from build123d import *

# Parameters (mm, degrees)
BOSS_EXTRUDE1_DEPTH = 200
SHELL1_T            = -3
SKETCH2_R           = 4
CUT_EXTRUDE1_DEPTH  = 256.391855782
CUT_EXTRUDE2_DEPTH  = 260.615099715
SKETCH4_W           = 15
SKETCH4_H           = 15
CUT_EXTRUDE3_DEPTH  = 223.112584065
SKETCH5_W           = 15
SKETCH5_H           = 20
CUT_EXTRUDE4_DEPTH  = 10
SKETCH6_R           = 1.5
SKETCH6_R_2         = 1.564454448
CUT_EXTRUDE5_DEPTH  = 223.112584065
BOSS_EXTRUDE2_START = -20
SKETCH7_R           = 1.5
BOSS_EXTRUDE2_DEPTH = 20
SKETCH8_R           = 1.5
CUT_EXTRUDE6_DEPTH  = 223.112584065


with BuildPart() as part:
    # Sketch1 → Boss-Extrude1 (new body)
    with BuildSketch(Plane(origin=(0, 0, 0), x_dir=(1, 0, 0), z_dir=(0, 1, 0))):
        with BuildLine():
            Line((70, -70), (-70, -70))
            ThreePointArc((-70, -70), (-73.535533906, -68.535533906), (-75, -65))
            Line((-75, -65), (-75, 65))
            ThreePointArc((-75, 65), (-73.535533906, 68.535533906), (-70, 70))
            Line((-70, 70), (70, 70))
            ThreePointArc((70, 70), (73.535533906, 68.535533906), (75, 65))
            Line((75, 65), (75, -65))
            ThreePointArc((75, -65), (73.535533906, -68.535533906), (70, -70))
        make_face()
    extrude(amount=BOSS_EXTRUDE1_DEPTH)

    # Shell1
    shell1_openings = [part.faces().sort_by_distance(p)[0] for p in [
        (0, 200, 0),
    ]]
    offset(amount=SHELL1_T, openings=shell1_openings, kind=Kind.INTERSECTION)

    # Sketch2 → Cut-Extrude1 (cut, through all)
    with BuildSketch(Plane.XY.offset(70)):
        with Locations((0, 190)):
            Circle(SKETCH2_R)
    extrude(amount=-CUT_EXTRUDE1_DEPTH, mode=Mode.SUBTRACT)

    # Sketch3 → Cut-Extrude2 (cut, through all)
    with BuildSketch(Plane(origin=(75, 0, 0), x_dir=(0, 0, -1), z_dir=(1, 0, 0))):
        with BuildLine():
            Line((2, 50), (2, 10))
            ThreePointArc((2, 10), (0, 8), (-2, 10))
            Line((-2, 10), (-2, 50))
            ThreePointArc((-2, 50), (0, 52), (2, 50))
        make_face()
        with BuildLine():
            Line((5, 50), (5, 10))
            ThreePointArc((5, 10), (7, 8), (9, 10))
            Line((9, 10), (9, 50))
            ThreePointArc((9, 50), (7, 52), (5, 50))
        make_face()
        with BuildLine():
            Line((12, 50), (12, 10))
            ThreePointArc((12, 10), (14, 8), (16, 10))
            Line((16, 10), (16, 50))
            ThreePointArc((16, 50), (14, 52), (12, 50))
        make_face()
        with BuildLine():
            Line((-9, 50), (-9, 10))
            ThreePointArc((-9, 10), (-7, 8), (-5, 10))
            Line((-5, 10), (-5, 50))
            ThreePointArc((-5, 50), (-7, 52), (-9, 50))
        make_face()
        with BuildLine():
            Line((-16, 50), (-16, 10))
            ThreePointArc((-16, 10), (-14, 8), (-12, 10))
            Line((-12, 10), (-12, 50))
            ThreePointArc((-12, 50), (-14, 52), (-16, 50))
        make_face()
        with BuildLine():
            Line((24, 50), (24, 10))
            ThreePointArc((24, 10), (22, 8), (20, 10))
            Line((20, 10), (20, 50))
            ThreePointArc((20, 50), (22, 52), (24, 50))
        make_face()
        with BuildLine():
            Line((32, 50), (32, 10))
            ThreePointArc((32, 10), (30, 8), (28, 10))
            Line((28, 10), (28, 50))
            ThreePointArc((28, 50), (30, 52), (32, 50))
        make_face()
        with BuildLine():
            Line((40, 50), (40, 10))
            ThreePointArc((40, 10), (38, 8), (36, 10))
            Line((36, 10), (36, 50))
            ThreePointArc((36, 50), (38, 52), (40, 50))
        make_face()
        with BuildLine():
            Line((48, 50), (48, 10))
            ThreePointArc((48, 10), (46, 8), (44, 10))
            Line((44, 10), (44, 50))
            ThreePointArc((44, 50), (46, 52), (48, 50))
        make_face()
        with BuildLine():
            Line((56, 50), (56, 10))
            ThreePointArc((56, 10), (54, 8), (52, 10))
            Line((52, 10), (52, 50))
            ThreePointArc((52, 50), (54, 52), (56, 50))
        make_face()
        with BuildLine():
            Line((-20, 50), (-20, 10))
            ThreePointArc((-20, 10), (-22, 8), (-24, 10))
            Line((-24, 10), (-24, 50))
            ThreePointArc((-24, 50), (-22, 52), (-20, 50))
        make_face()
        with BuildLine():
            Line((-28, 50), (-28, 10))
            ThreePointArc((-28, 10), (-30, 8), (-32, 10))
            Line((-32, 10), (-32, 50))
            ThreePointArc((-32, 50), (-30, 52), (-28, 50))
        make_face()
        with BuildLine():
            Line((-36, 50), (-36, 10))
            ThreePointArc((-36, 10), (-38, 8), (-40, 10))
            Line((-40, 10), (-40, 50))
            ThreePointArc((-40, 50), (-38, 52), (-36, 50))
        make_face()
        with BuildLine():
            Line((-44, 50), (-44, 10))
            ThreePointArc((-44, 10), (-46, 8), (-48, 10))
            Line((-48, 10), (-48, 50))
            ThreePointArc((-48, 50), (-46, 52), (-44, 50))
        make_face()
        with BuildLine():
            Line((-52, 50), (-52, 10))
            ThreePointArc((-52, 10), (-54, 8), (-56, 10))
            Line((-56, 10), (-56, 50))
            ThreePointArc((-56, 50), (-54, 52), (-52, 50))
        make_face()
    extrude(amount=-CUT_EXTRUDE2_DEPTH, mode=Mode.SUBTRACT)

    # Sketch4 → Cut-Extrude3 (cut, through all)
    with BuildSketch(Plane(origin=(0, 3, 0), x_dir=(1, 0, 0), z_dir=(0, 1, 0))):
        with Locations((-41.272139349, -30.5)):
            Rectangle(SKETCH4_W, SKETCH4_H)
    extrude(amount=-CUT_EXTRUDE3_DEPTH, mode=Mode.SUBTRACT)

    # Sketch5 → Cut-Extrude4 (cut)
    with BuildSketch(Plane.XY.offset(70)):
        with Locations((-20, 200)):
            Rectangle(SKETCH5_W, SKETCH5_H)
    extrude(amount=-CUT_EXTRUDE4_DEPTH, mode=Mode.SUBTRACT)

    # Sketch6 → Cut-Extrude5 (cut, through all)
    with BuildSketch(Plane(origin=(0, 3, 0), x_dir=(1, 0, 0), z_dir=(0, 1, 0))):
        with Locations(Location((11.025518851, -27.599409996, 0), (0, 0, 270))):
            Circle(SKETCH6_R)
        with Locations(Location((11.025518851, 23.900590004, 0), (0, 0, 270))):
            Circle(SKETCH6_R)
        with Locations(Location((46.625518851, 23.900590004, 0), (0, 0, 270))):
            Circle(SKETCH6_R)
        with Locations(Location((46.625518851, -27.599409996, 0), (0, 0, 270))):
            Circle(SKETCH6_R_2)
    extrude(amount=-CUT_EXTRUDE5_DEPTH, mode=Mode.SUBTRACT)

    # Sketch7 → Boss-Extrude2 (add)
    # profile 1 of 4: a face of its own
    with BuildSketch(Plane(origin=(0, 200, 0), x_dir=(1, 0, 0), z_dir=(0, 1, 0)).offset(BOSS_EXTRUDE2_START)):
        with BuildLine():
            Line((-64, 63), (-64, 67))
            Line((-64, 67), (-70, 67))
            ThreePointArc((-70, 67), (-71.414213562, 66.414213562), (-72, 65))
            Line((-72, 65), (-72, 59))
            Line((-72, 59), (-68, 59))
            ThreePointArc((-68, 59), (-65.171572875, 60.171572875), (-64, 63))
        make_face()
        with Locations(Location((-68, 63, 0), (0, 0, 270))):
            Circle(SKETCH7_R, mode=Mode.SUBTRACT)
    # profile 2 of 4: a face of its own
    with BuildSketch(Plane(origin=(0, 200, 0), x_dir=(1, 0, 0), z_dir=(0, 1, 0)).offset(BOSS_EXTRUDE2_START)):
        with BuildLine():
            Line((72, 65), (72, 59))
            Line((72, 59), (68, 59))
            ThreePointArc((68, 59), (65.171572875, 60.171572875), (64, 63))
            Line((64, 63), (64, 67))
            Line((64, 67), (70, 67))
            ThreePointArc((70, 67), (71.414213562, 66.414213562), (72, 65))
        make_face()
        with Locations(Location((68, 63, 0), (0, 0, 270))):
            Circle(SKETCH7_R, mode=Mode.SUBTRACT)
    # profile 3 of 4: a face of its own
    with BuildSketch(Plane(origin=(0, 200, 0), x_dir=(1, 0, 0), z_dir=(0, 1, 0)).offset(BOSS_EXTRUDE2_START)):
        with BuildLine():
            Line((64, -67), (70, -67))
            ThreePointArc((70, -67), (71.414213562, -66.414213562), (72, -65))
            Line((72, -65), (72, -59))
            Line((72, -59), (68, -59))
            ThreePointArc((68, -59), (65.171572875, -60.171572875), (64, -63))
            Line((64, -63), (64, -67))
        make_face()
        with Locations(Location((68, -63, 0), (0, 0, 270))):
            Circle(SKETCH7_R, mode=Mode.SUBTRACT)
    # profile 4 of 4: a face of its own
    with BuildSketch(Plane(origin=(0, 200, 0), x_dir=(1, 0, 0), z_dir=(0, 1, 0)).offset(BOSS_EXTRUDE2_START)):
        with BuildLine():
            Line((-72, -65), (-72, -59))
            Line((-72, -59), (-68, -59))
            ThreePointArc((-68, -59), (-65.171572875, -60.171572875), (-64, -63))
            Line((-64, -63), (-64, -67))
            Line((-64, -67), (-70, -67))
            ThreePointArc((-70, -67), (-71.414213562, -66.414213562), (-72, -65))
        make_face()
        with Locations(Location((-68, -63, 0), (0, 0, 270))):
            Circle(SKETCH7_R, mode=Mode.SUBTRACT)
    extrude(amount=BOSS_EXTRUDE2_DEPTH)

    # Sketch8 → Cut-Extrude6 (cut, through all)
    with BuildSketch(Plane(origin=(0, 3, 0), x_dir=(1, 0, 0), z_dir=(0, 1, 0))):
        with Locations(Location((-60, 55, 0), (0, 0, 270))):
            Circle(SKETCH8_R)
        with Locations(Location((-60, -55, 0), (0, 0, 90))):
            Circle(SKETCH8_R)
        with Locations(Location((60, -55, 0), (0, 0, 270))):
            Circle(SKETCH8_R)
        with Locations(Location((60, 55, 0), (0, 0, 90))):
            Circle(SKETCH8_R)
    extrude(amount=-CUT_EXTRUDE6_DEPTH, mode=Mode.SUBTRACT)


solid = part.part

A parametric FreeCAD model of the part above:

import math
import FreeCAD as App
import Part
import Sketcher

V = App.Vector
Q = App.Units.Quantity


def faces_at(feature, points):
    """Names of the faces that lie closest to the given points."""
    faces = feature.Shape.Faces
    near = lambda p: min(range(len(faces)), key=lambda i: faces[i].distToShape(Part.Vertex(*p))[0])
    return sorted({f"Face{near(p) + 1}" for p in points})


def add_polygon(sketch, points):
    """Adds a closed chain of lines whose ends are joined by coincident constraints."""
    first, n = sketch.GeometryCount, len(points)
    for a, b in zip(points, points[1:] + points[:1]):
        sketch.addGeometry(Part.LineSegment(App.Vector(*a, 0), App.Vector(*b, 0)), False)
    for i in range(n):
        sketch.addConstraint(Sketcher.Constraint("Coincident", first + i, 2, first + (i + 1) % n, 1))

doc = App.newDocument("Part")
body = doc.addObject("PartDesign::Body", "Body")

# Sketch on XZ plane
sketch1 = body.newObject("Sketcher::SketchObject", "Sketch")
sketch1.AttachmentSupport = (doc.getObject("XZ_Plane"), [""])
sketch1.MapMode = "FlatFace"
sketch1.addGeometry(Part.LineSegment(V(-70, 70, 0), V(70, 70, 0)), False)
sketch1.addGeometry(Part.ArcOfCircle(Part.Circle(V(70, 65, 0), V(0, 0, 1), 5), math.radians(0), math.radians(90)), False)
sketch1.addGeometry(Part.LineSegment(V(75, 65, 0), V(75, -65, 0)), False)
sketch1.addGeometry(Part.ArcOfCircle(Part.Circle(V(70, -65, 0), V(0, 0, 1), 5), math.radians(-90), math.radians(0)), False)
sketch1.addGeometry(Part.LineSegment(V(70, -70, 0), V(-70, -70, 0)), False)
sketch1.addGeometry(Part.ArcOfCircle(Part.Circle(V(-70, -65, 0), V(0, 0, 1), 5), math.radians(180), math.radians(270)), False)
sketch1.addGeometry(Part.LineSegment(V(-75, -65, 0), V(-75, 65, 0)), False)
sketch1.addGeometry(Part.ArcOfCircle(Part.Circle(V(-70, 65, 0), V(0, 0, 1), 5), math.radians(90), math.radians(180)), False)
sketch1.addConstraint(Sketcher.Constraint("Tangent", 0, 2, 1, 2))
sketch1.addConstraint(Sketcher.Constraint("Tangent", 1, 1, 2, 1))
sketch1.addConstraint(Sketcher.Constraint("Tangent", 2, 2, 3, 2))
sketch1.addConstraint(Sketcher.Constraint("Tangent", 3, 1, 4, 1))
sketch1.addConstraint(Sketcher.Constraint("Tangent", 4, 2, 5, 2))
sketch1.addConstraint(Sketcher.Constraint("Tangent", 5, 1, 6, 1))
sketch1.addConstraint(Sketcher.Constraint("Tangent", 6, 2, 7, 2))
sketch1.addConstraint(Sketcher.Constraint("Tangent", 7, 1, 0, 1))
sketch1.addConstraint(Sketcher.Constraint("Horizontal", 0))
sketch1.addConstraint(Sketcher.Constraint("Vertical", 2))
sketch1.addConstraint(Sketcher.Constraint("Horizontal", 4))
sketch1.addConstraint(Sketcher.Constraint("Vertical", 6))
sketch1.addConstraint(Sketcher.Constraint("Equal", 1, 3))
sketch1.addConstraint(Sketcher.Constraint("Equal", 3, 5))
sketch1.addConstraint(Sketcher.Constraint("Equal", 5, 7))
sketch1.addConstraint(Sketcher.Constraint("Symmetric", 1, 3, 5, 3, -1, 1))
sketch1.addConstraint(Sketcher.Constraint("Radius", 1, Q("5 mm")))
sketch1.addConstraint(Sketcher.Constraint("DistanceX", 0, 1, 0, 2, Q("140 mm")))
sketch1.addConstraint(Sketcher.Constraint("DistanceY", 2, 2, 2, 1, Q("130 mm")))
pad1 = body.newObject("PartDesign::Pad", "Pad")
pad1.Profile = sketch1
pad1.Length = 200
pad1.Reversed = True
doc.recompute()

thickness = body.newObject("PartDesign::Thickness", "Thickness")
thickness.Base = (pad1, faces_at(pad1, [(0, 200, 0)]))
thickness.Value = 3
thickness.Reversed = True
thickness.Join = "Intersection"

# Sketch on XY plane
sketch2 = body.newObject("Sketcher::SketchObject", "Sketch001")
sketch2.AttachmentSupport = (doc.getObject("XY_Plane"), [""])
sketch2.MapMode = "FlatFace"
sketch2.AttachmentOffset = App.Placement(V(0, 0, 70), App.Rotation())
sketch2.addGeometry(Part.Circle(V(0, 190, 0), V(0, 0, 1), 4), False)
sketch2.addConstraint(Sketcher.Constraint("PointOnObject", 0, 3, -2))
sketch2.addConstraint(Sketcher.Constraint("Diameter", 0, Q("8 mm")))
sketch2.addConstraint(Sketcher.Constraint("DistanceY", -1, 1, 0, 3, Q("190 mm")))
pocket1 = body.newObject("PartDesign::Pocket", "Pocket")
pocket1.Profile = sketch2
pocket1.Type = "ThroughAll"

# Sketch on YZ plane
sketch3 = body.newObject("Sketcher::SketchObject", "Sketch002")
sketch3.AttachmentSupport = (doc.getObject("YZ_Plane"), [""])
sketch3.MapMode = "FlatFace"
sketch3.AttachmentOffset = App.Placement(V(0, 0, 75), App.Rotation())
sketch3.addGeometry(Part.LineSegment(V(10, -2, 0), V(50, -2, 0)), False)
sketch3.addGeometry(Part.ArcOfCircle(Part.Circle(V(50, 0, 0), V(0, 0, 1), 2), math.radians(-90), math.radians(90)), False)
sketch3.addGeometry(Part.LineSegment(V(50, 2, 0), V(10, 2, 0)), False)
sketch3.addGeometry(Part.ArcOfCircle(Part.Circle(V(10, 0, 0), V(0, 0, 1), 2), math.radians(90), math.radians(270)), False)
sketch3.addGeometry(Part.LineSegment(V(50, -5, 0), V(10, -5, 0)), False)
sketch3.addGeometry(Part.ArcOfCircle(Part.Circle(V(10, -7, 0), V(0, 0, 1), 2), math.radians(90), math.radians(270)), False)
sketch3.addGeometry(Part.LineSegment(V(10, -9, 0), V(50, -9, 0)), False)
sketch3.addGeometry(Part.ArcOfCircle(Part.Circle(V(50, -7, 0), V(0, 0, 1), 2), math.radians(-90), math.radians(90)), False)
sketch3.addGeometry(Part.LineSegment(V(50, -12, 0), V(10, -12, 0)), False)
sketch3.addGeometry(Part.ArcOfCircle(Part.Circle(V(10, -14, 0), V(0, 0, 1), 2), math.radians(90), math.radians(270)), False)
sketch3.addGeometry(Part.LineSegment(V(10, -16, 0), V(50, -16, 0)), False)
sketch3.addGeometry(Part.ArcOfCircle(Part.Circle(V(50, -14, 0), V(0, 0, 1), 2), math.radians(-90), math.radians(90)), False)
sketch3.addGeometry(Part.LineSegment(V(50, 9, 0), V(10, 9, 0)), False)
sketch3.addGeometry(Part.ArcOfCircle(Part.Circle(V(10, 7, 0), V(0, 0, 1), 2), math.radians(90), math.radians(270)), False)
sketch3.addGeometry(Part.LineSegment(V(10, 5, 0), V(50, 5, 0)), False)
sketch3.addGeometry(Part.ArcOfCircle(Part.Circle(V(50, 7, 0), V(0, 0, 1), 2), math.radians(-90), math.radians(90)), False)
sketch3.addGeometry(Part.LineSegment(V(50, 16, 0), V(10, 16, 0)), False)
sketch3.addGeometry(Part.ArcOfCircle(Part.Circle(V(10, 14, 0), V(0, 0, 1), 2), math.radians(90), math.radians(270)), False)
sketch3.addGeometry(Part.LineSegment(V(10, 12, 0), V(50, 12, 0)), False)
sketch3.addGeometry(Part.ArcOfCircle(Part.Circle(V(50, 14, 0), V(0, 0, 1), 2), math.radians(-90), math.radians(90)), False)
sketch3.addGeometry(Part.LineSegment(V(10, -24, 0), V(50, -24, 0)), False)
sketch3.addGeometry(Part.ArcOfCircle(Part.Circle(V(50, -22, 0), V(0, 0, 1), 2), math.radians(-90), math.radians(90)), False)
sketch3.addGeometry(Part.LineSegment(V(50, -20, 0), V(10, -20, 0)), False)
sketch3.addGeometry(Part.ArcOfCircle(Part.Circle(V(10, -22, 0), V(0, 0, 1), 2), math.radians(90), math.radians(270)), False)
sketch3.addGeometry(Part.LineSegment(V(10, -32, 0), V(50, -32, 0)), False)
sketch3.addGeometry(Part.ArcOfCircle(Part.Circle(V(50, -30, 0), V(0, 0, 1), 2), math.radians(-90), math.radians(90)), False)
sketch3.addGeometry(Part.LineSegment(V(50, -28, 0), V(10, -28, 0)), False)
sketch3.addGeometry(Part.ArcOfCircle(Part.Circle(V(10, -30, 0), V(0, 0, 1), 2), math.radians(90), math.radians(270)), False)
sketch3.addGeometry(Part.LineSegment(V(10, -40, 0), V(50, -40, 0)), False)
sketch3.addGeometry(Part.ArcOfCircle(Part.Circle(V(50, -38, 0), V(0, 0, 1), 2), math.radians(-90), math.radians(90)), False)
sketch3.addGeometry(Part.LineSegment(V(50, -36, 0), V(10, -36, 0)), False)
sketch3.addGeometry(Part.ArcOfCircle(Part.Circle(V(10, -38, 0), V(0, 0, 1), 2), math.radians(90), math.radians(270)), False)
sketch3.addGeometry(Part.LineSegment(V(10, -48, 0), V(50, -48, 0)), False)
sketch3.addGeometry(Part.ArcOfCircle(Part.Circle(V(50, -46, 0), V(0, 0, 1), 2), math.radians(-90), math.radians(90)), False)
sketch3.addGeometry(Part.LineSegment(V(50, -44, 0), V(10, -44, 0)), False)
sketch3.addGeometry(Part.ArcOfCircle(Part.Circle(V(10, -46, 0), V(0, 0, 1), 2), math.radians(90), math.radians(270)), False)
sketch3.addGeometry(Part.LineSegment(V(10, -56, 0), V(50, -56, 0)), False)
sketch3.addGeometry(Part.ArcOfCircle(Part.Circle(V(50, -54, 0), V(0, 0, 1), 2), math.radians(-90), math.radians(90)), False)
sketch3.addGeometry(Part.LineSegment(V(50, -52, 0), V(10, -52, 0)), False)
sketch3.addGeometry(Part.ArcOfCircle(Part.Circle(V(10, -54, 0), V(0, 0, 1), 2), math.radians(90), math.radians(270)), False)
sketch3.addGeometry(Part.LineSegment(V(10, 20, 0), V(50, 20, 0)), False)
sketch3.addGeometry(Part.ArcOfCircle(Part.Circle(V(50, 22, 0), V(0, 0, 1), 2), math.radians(-90), math.radians(90)), False)
sketch3.addGeometry(Part.LineSegment(V(50, 24, 0), V(10, 24, 0)), False)
sketch3.addGeometry(Part.ArcOfCircle(Part.Circle(V(10, 22, 0), V(0, 0, 1), 2), math.radians(90), math.radians(270)), False)
sketch3.addGeometry(Part.LineSegment(V(10, 28, 0), V(50, 28, 0)), False)
sketch3.addGeometry(Part.ArcOfCircle(Part.Circle(V(50, 30, 0), V(0, 0, 1), 2), math.radians(-90), math.radians(90)), False)
sketch3.addGeometry(Part.LineSegment(V(50, 32, 0), V(10, 32, 0)), False)
sketch3.addGeometry(Part.ArcOfCircle(Part.Circle(V(10, 30, 0), V(0, 0, 1), 2), math.radians(90), math.radians(270)), False)
sketch3.addGeometry(Part.LineSegment(V(10, 36, 0), V(50, 36, 0)), False)
sketch3.addGeometry(Part.ArcOfCircle(Part.Circle(V(50, 38, 0), V(0, 0, 1), 2), math.radians(-90), math.radians(90)), False)
sketch3.addGeometry(Part.LineSegment(V(50, 40, 0), V(10, 40, 0)), False)
sketch3.addGeometry(Part.ArcOfCircle(Part.Circle(V(10, 38, 0), V(0, 0, 1), 2), math.radians(90), math.radians(270)), False)
sketch3.addGeometry(Part.LineSegment(V(10, 44, 0), V(50, 44, 0)), False)
sketch3.addGeometry(Part.ArcOfCircle(Part.Circle(V(50, 46, 0), V(0, 0, 1), 2), math.radians(-90), math.radians(90)), False)
sketch3.addGeometry(Part.LineSegment(V(50, 48, 0), V(10, 48, 0)), False)
sketch3.addGeometry(Part.ArcOfCircle(Part.Circle(V(10, 46, 0), V(0, 0, 1), 2), math.radians(90), math.radians(270)), False)
sketch3.addGeometry(Part.LineSegment(V(10, 52, 0), V(50, 52, 0)), False)
sketch3.addGeometry(Part.ArcOfCircle(Part.Circle(V(50, 54, 0), V(0, 0, 1), 2), math.radians(-90), math.radians(90)), False)
sketch3.addGeometry(Part.LineSegment(V(50, 56, 0), V(10, 56, 0)), False)
sketch3.addGeometry(Part.ArcOfCircle(Part.Circle(V(10, 54, 0), V(0, 0, 1), 2), math.radians(90), math.radians(270)), False)
sketch3.addConstraint(Sketcher.Constraint("Tangent", 0, 2, 1, 1))
sketch3.addConstraint(Sketcher.Constraint("Tangent", 1, 2, 2, 1))
sketch3.addConstraint(Sketcher.Constraint("Tangent", 2, 2, 3, 1))
sketch3.addConstraint(Sketcher.Constraint("Tangent", 3, 2, 0, 1))
sketch3.addConstraint(Sketcher.Constraint("Tangent", 4, 2, 5, 1))
sketch3.addConstraint(Sketcher.Constraint("Tangent", 5, 2, 6, 1))
sketch3.addConstraint(Sketcher.Constraint("Tangent", 6, 2, 7, 1))
sketch3.addConstraint(Sketcher.Constraint("Tangent", 7, 2, 4, 1))
sketch3.addConstraint(Sketcher.Constraint("Tangent", 8, 2, 9, 1))
sketch3.addConstraint(Sketcher.Constraint("Tangent", 9, 2, 10, 1))
sketch3.addConstraint(Sketcher.Constraint("Tangent", 10, 2, 11, 1))
sketch3.addConstraint(Sketcher.Constraint("Tangent", 11, 2, 8, 1))
sketch3.addConstraint(Sketcher.Constraint("Tangent", 12, 2, 13, 1))
sketch3.addConstraint(Sketcher.Constraint("Tangent", 13, 2, 14, 1))
sketch3.addConstraint(Sketcher.Constraint("Tangent", 14, 2, 15, 1))
sketch3.addConstraint(Sketcher.Constraint("Tangent", 15, 2, 12, 1))
sketch3.addConstraint(Sketcher.Constraint("Tangent", 16, 2, 17, 1))
sketch3.addConstraint(Sketcher.Constraint("Tangent", 17, 2, 18, 1))
sketch3.addConstraint(Sketcher.Constraint("Tangent", 18, 2, 19, 1))
sketch3.addConstraint(Sketcher.Constraint("Tangent", 19, 2, 16, 1))
sketch3.addConstraint(Sketcher.Constraint("Tangent", 20, 2, 21, 1))
sketch3.addConstraint(Sketcher.Constraint("Tangent", 21, 2, 22, 1))
sketch3.addConstraint(Sketcher.Constraint("Tangent", 22, 2, 23, 1))
sketch3.addConstraint(Sketcher.Constraint("Tangent", 23, 2, 20, 1))
sketch3.addConstraint(Sketcher.Constraint("Tangent", 24, 2, 25, 1))
sketch3.addConstraint(Sketcher.Constraint("Tangent", 25, 2, 26, 1))
sketch3.addConstraint(Sketcher.Constraint("Tangent", 26, 2, 27, 1))
sketch3.addConstraint(Sketcher.Constraint("Tangent", 27, 2, 24, 1))
sketch3.addConstraint(Sketcher.Constraint("Tangent", 28, 2, 29, 1))
sketch3.addConstraint(Sketcher.Constraint("Tangent", 29, 2, 30, 1))
sketch3.addConstraint(Sketcher.Constraint("Tangent", 30, 2, 31, 1))
sketch3.addConstraint(Sketcher.Constraint("Tangent", 31, 2, 28, 1))
sketch3.addConstraint(Sketcher.Constraint("Tangent", 32, 2, 33, 1))
sketch3.addConstraint(Sketcher.Constraint("Tangent", 33, 2, 34, 1))
sketch3.addConstraint(Sketcher.Constraint("Tangent", 34, 2, 35, 1))
sketch3.addConstraint(Sketcher.Constraint("Tangent", 35, 2, 32, 1))
sketch3.addConstraint(Sketcher.Constraint("Tangent", 36, 2, 37, 1))
sketch3.addConstraint(Sketcher.Constraint("Tangent", 37, 2, 38, 1))
sketch3.addConstraint(Sketcher.Constraint("Tangent", 38, 2, 39, 1))
sketch3.addConstraint(Sketcher.Constraint("Tangent", 39, 2, 36, 1))
sketch3.addConstraint(Sketcher.Constraint("Tangent", 40, 2, 41, 1))
sketch3.addConstraint(Sketcher.Constraint("Tangent", 41, 2, 42, 1))
sketch3.addConstraint(Sketcher.Constraint("Tangent", 42, 2, 43, 1))
sketch3.addConstraint(Sketcher.Constraint("Tangent", 43, 2, 40, 1))
sketch3.addConstraint(Sketcher.Constraint("Tangent", 44, 2, 45, 1))
sketch3.addConstraint(Sketcher.Constraint("Tangent", 45, 2, 46, 1))
sketch3.addConstraint(Sketcher.Constraint("Tangent", 46, 2, 47, 1))
sketch3.addConstraint(Sketcher.Constraint("Tangent", 47, 2, 44, 1))
sketch3.addConstraint(Sketcher.Constraint("Tangent", 48, 2, 49, 1))
sketch3.addConstraint(Sketcher.Constraint("Tangent", 49, 2, 50, 1))
sketch3.addConstraint(Sketcher.Constraint("Tangent", 50, 2, 51, 1))
sketch3.addConstraint(Sketcher.Constraint("Tangent", 51, 2, 48, 1))
sketch3.addConstraint(Sketcher.Constraint("Tangent", 52, 2, 53, 1))
sketch3.addConstraint(Sketcher.Constraint("Tangent", 53, 2, 54, 1))
sketch3.addConstraint(Sketcher.Constraint("Tangent", 54, 2, 55, 1))
sketch3.addConstraint(Sketcher.Constraint("Tangent", 55, 2, 52, 1))
sketch3.addConstraint(Sketcher.Constraint("Tangent", 56, 2, 57, 1))
sketch3.addConstraint(Sketcher.Constraint("Tangent", 57, 2, 58, 1))
sketch3.addConstraint(Sketcher.Constraint("Tangent", 58, 2, 59, 1))
sketch3.addConstraint(Sketcher.Constraint("Tangent", 59, 2, 56, 1))
sketch3.addConstraint(Sketcher.Constraint("Horizontal", 0))
sketch3.addConstraint(Sketcher.Constraint("Horizontal", 2))
sketch3.addConstraint(Sketcher.Constraint("Horizontal", 4))
sketch3.addConstraint(Sketcher.Constraint("Horizontal", 6))
sketch3.addConstraint(Sketcher.Constraint("Horizontal", 8))
sketch3.addConstraint(Sketcher.Constraint("Horizontal", 10))
sketch3.addConstraint(Sketcher.Constraint("Horizontal", 12))
sketch3.addConstraint(Sketcher.Constraint("Horizontal", 14))
sketch3.addConstraint(Sketcher.Constraint("Horizontal", 16))
sketch3.addConstraint(Sketcher.Constraint("Horizontal", 18))
sketch3.addConstraint(Sketcher.Constraint("Horizontal", 20))
sketch3.addConstraint(Sketcher.Constraint("Horizontal", 22))
sketch3.addConstraint(Sketcher.Constraint("Horizontal", 24))
sketch3.addConstraint(Sketcher.Constraint("Horizontal", 26))
sketch3.addConstraint(Sketcher.Constraint("Horizontal", 28))
sketch3.addConstraint(Sketcher.Constraint("Horizontal", 30))
sketch3.addConstraint(Sketcher.Constraint("Horizontal", 32))
sketch3.addConstraint(Sketcher.Constraint("Horizontal", 34))
sketch3.addConstraint(Sketcher.Constraint("Horizontal", 36))
sketch3.addConstraint(Sketcher.Constraint("Horizontal", 38))
sketch3.addConstraint(Sketcher.Constraint("Horizontal", 40))
sketch3.addConstraint(Sketcher.Constraint("Horizontal", 42))
sketch3.addConstraint(Sketcher.Constraint("Horizontal", 44))
sketch3.addConstraint(Sketcher.Constraint("Horizontal", 46))
sketch3.addConstraint(Sketcher.Constraint("Horizontal", 48))
sketch3.addConstraint(Sketcher.Constraint("Horizontal", 50))
sketch3.addConstraint(Sketcher.Constraint("Horizontal", 52))
sketch3.addConstraint(Sketcher.Constraint("Horizontal", 54))
sketch3.addConstraint(Sketcher.Constraint("Horizontal", 56))
sketch3.addConstraint(Sketcher.Constraint("Horizontal", 58))
sketch3.addConstraint(Sketcher.Constraint("Equal", 3, 5))
sketch3.addConstraint(Sketcher.Constraint("Equal", 7, 9))
sketch3.addConstraint(Sketcher.Constraint("Equal", 11, 13))
sketch3.addConstraint(Sketcher.Constraint("Equal", 15, 17))
sketch3.addConstraint(Sketcher.Constraint("Equal", 19, 21))
sketch3.addConstraint(Sketcher.Constraint("Equal", 23, 25))
sketch3.addConstraint(Sketcher.Constraint("Equal", 27, 29))
sketch3.addConstraint(Sketcher.Constraint("Equal", 31, 33))
sketch3.addConstraint(Sketcher.Constraint("Equal", 35, 37))
sketch3.addConstraint(Sketcher.Constraint("Equal", 39, 41))
sketch3.addConstraint(Sketcher.Constraint("Equal", 43, 45))
sketch3.addConstraint(Sketcher.Constraint("Equal", 47, 49))
sketch3.addConstraint(Sketcher.Constraint("Equal", 51, 53))
sketch3.addConstraint(Sketcher.Constraint("Equal", 55, 57))
sketch3.addConstraint(Sketcher.Constraint("Symmetric", 5, 3, 13, 3, -1))
sketch3.addConstraint(Sketcher.Constraint("Symmetric", 9, 3, 17, 3, -1))
sketch3.addConstraint(Sketcher.Constraint("Symmetric", 21, 3, 41, 3, -1))
sketch3.addConstraint(Sketcher.Constraint("Symmetric", 25, 3, 45, 3, -1))
sketch3.addConstraint(Sketcher.Constraint("Symmetric", 29, 3, 49, 3, -1))
sketch3.addConstraint(Sketcher.Constraint("Symmetric", 33, 3, 53, 3, -1))
sketch3.addConstraint(Sketcher.Constraint("Symmetric", 37, 3, 57, 3, -1))
sketch3.addConstraint(Sketcher.Constraint("PointOnObject", 1, 3, -1))
sketch3.addConstraint(Sketcher.Constraint("Vertical", 3, 3, 5, 3))
sketch3.addConstraint(Sketcher.Constraint("Vertical", 1, 3, 7, 3))
sketch3.addConstraint(Sketcher.Constraint("Vertical", 5, 3, 9, 3))
sketch3.addConstraint(Sketcher.Constraint("Vertical", 7, 3, 11, 3))
sketch3.addConstraint(Sketcher.Constraint("Vertical", 11, 3, 15, 3))
sketch3.addConstraint(Sketcher.Constraint("Vertical", 15, 3, 19, 3))
sketch3.addConstraint(Sketcher.Constraint("Vertical", 19, 3, 21, 3))
sketch3.addConstraint(Sketcher.Constraint("Vertical", 17, 3, 23, 3))
sketch3.addConstraint(Sketcher.Constraint("Vertical", 21, 3, 25, 3))
sketch3.addConstraint(Sketcher.Constraint("Vertical", 23, 3, 27, 3))
sketch3.addConstraint(Sketcher.Constraint("Vertical", 25, 3, 29, 3))
sketch3.addConstraint(Sketcher.Constraint("Vertical", 27, 3, 31, 3))
sketch3.addConstraint(Sketcher.Constraint("Vertical", 29, 3, 33, 3))
sketch3.addConstraint(Sketcher.Constraint("Vertical", 31, 3, 35, 3))
sketch3.addConstraint(Sketcher.Constraint("Vertical", 33, 3, 37, 3))
sketch3.addConstraint(Sketcher.Constraint("Vertical", 35, 3, 39, 3))
sketch3.addConstraint(Sketcher.Constraint("Vertical", 39, 3, 43, 3))
sketch3.addConstraint(Sketcher.Constraint("Vertical", 43, 3, 47, 3))
sketch3.addConstraint(Sketcher.Constraint("Vertical", 47, 3, 51, 3))
sketch3.addConstraint(Sketcher.Constraint("Vertical", 51, 3, 55, 3))
sketch3.addConstraint(Sketcher.Constraint("Vertical", 55, 3, 59, 3))
sketch3.addConstraint(Sketcher.Constraint("Radius", 1, Q("2 mm")))
sketch3.addConstraint(Sketcher.Constraint("DistanceX", 0, 1, 0, 2, Q("40 mm")))
sketch3.addConstraint(Sketcher.Constraint("DistanceX", -1, 1, 1, 3, Q("50 mm")))
sketch3.addConstraint(Sketcher.Constraint("DistanceY", 5, 3, -1, 1, Q("7 mm")))
sketch3.addConstraint(Sketcher.Constraint("DistanceY", 9, 3, -1, 1, Q("14 mm")))
sketch3.addConstraint(Sketcher.Constraint("DistanceY", 21, 3, -1, 1, Q("22 mm")))
sketch3.addConstraint(Sketcher.Constraint("DistanceY", 25, 3, -1, 1, Q("30 mm")))
sketch3.addConstraint(Sketcher.Constraint("DistanceY", 29, 3, -1, 1, Q("38 mm")))
sketch3.addConstraint(Sketcher.Constraint("DistanceY", 33, 3, -1, 1, Q("46 mm")))
sketch3.addConstraint(Sketcher.Constraint("DistanceY", 37, 3, -1, 1, Q("54 mm")))
pocket2 = body.newObject("PartDesign::Pocket", "Pocket001")
pocket2.Profile = sketch3
pocket2.Type = "ThroughAll"

# Sketch on XZ plane
sketch4 = body.newObject("Sketcher::SketchObject", "Sketch003")
sketch4.AttachmentSupport = (doc.getObject("XZ_Plane"), [""])
sketch4.MapMode = "FlatFace"
sketch4.AttachmentOffset = App.Placement(V(0, 0, -3), App.Rotation())
add_polygon(sketch4, [(-49, 23), (-49, 38), (-34, 38), (-34, 23)])  # lines 0-3
sketch4.addConstraint(Sketcher.Constraint("Vertical", 0))
sketch4.addConstraint(Sketcher.Constraint("Horizontal", 1))
sketch4.addConstraint(Sketcher.Constraint("Vertical", 2))
sketch4.addConstraint(Sketcher.Constraint("Horizontal", 3))
sketch4.addConstraint(Sketcher.Constraint("Equal", 3, 0))
sketch4.addConstraint(Sketcher.Constraint("DistanceX", 1, 1, 1, 2, Q("15 mm")))
sketch4.addConstraint(Sketcher.Constraint("DistanceY", -1, 1, 0, 2, Q("38 mm")))
sketch4.addConstraint(Sketcher.Constraint("DistanceX", 0, 2, -1, 1, Q("48.772139 mm")))
pocket3 = body.newObject("PartDesign::Pocket", "Pocket002")
pocket3.Profile = sketch4
pocket3.Type = "ThroughAll"
pocket3.Reversed = True

# Sketch on XY plane
sketch5 = body.newObject("Sketcher::SketchObject", "Sketch004")
sketch5.AttachmentSupport = (doc.getObject("XY_Plane"), [""])
sketch5.MapMode = "FlatFace"
sketch5.AttachmentOffset = App.Placement(V(0, 0, 70), App.Rotation())
add_polygon(sketch5, [(-28, 210), (-28, 190), (-12, 190), (-12, 210)])  # lines 0-3
sketch5.addConstraint(Sketcher.Constraint("Vertical", 0))
sketch5.addConstraint(Sketcher.Constraint("Horizontal", 1))
sketch5.addConstraint(Sketcher.Constraint("Vertical", 2))
sketch5.addConstraint(Sketcher.Constraint("Horizontal", 3))
sketch5.addConstraint(Sketcher.Constraint("DistanceX", 1, 1, 1, 2, Q("15 mm")))
sketch5.addConstraint(Sketcher.Constraint("DistanceY", 0, 2, 0, 1, Q("20 mm")))
sketch5.addConstraint(Sketcher.Constraint("DistanceY", -1, 1, 0, 2, Q("190 mm")))
sketch5.addConstraint(Sketcher.Constraint("DistanceX", 0, 2, -1, 1, Q("27.5 mm")))
pocket4 = body.newObject("PartDesign::Pocket", "Pocket003")
pocket4.Profile = sketch5
pocket4.Length = 10

# Sketch on XZ plane
sketch6 = body.newObject("Sketcher::SketchObject", "Sketch005")
sketch6.AttachmentSupport = (doc.getObject("XZ_Plane"), [""])
sketch6.MapMode = "FlatFace"
sketch6.AttachmentOffset = App.Placement(V(0, 0, -3), App.Rotation())
sketch6.addGeometry(Part.Circle(V(11, 27.6, 0), V(0, 0, 1), 1.5), False)
sketch6.addGeometry(Part.Circle(V(11, -23.9, 0), V(0, 0, 1), 1.5), False)
sketch6.addGeometry(Part.Circle(V(46.6, -23.9, 0), V(0, 0, 1), 1.5), False)
sketch6.addGeometry(Part.Circle(V(46.6, 27.6, 0), V(0, 0, 1), 1.6), False)
sketch6.addConstraint(Sketcher.Constraint("Equal", 0, 1))
sketch6.addConstraint(Sketcher.Constraint("Equal", 1, 2))
sketch6.addConstraint(Sketcher.Constraint("Horizontal", 1, 3, 2, 3))
sketch6.addConstraint(Sketcher.Constraint("Horizontal", 0, 3, 3, 3))
sketch6.addConstraint(Sketcher.Constraint("Vertical", 0, 3, 1, 3))
sketch6.addConstraint(Sketcher.Constraint("Vertical", 2, 3, 3, 3))
sketch6.addConstraint(Sketcher.Constraint("Diameter", 0, Q("3 mm")))
sketch6.addConstraint(Sketcher.Constraint("DistanceY", 1, 3, 0, 3, Q("51.5 mm")))
sketch6.addConstraint(Sketcher.Constraint("DistanceX", 1, 3, 2, 3, Q("35.6 mm")))
sketch6.addConstraint(Sketcher.Constraint("Diameter", 3, Q("3.128909 mm")))
sketch6.addConstraint(Sketcher.Constraint("DistanceX", -1, 1, 0, 3, Q("11.025519 mm")))
sketch6.addConstraint(Sketcher.Constraint("DistanceY", -1, 1, 0, 3, Q("27.59941 mm")))
pocket5 = body.newObject("PartDesign::Pocket", "Pocket004")
pocket5.Profile = sketch6
pocket5.Type = "ThroughAll"
pocket5.Reversed = True

# Sketch on XZ plane
sketch7 = body.newObject("Sketcher::SketchObject", "Sketch006")
sketch7.AttachmentSupport = (doc.getObject("XZ_Plane"), [""])
sketch7.MapMode = "FlatFace"
sketch7.AttachmentOffset = App.Placement(V(0, 0, -180), App.Rotation())
sketch7.addGeometry(Part.LineSegment(V(-64, -63, 0), V(-64, -67, 0)), False)
sketch7.addGeometry(Part.LineSegment(V(-64, -67, 0), V(-70, -67, 0)), False)
sketch7.addGeometry(Part.ArcOfCircle(Part.Circle(V(-70, -65, 0), V(0, 0, 1), 2), math.radians(-180), math.radians(-90)), False)
sketch7.addGeometry(Part.LineSegment(V(-72, -65, 0), V(-72, -59, 0)), False)
sketch7.addGeometry(Part.LineSegment(V(-72, -59, 0), V(-68, -59, 0)), False)
sketch7.addGeometry(Part.ArcOfCircle(Part.Circle(V(-68, -63, 0), V(0, 0, 1), 4), math.radians(0), math.radians(90)), False)
sketch7.addGeometry(Part.Circle(V(-68, -63, 0), V(0, 0, 1), 1.5), False)
sketch7.addGeometry(Part.LineSegment(V(72, -59, 0), V(72, -65, 0)), False)
sketch7.addGeometry(Part.ArcOfCircle(Part.Circle(V(70, -65, 0), V(0, 0, 1), 2), math.radians(-90), math.radians(0)), False)
sketch7.addGeometry(Part.LineSegment(V(70, -67, 0), V(64, -67, 0)), False)
sketch7.addGeometry(Part.LineSegment(V(64, -67, 0), V(64, -63, 0)), False)
sketch7.addGeometry(Part.ArcOfCircle(Part.Circle(V(68, -63, 0), V(0, 0, 1), 4), math.radians(90), math.radians(180)), False)
sketch7.addGeometry(Part.LineSegment(V(68, -59, 0), V(72, -59, 0)), False)
sketch7.addGeometry(Part.Circle(V(68, -63, 0), V(0, 0, 1), 1.5), False)
sketch7.addGeometry(Part.LineSegment(V(64, 67, 0), V(70, 67, 0)), False)
sketch7.addGeometry(Part.ArcOfCircle(Part.Circle(V(70, 65, 0), V(0, 0, 1), 2), math.radians(0), math.radians(90)), False)
sketch7.addGeometry(Part.LineSegment(V(72, 65, 0), V(72, 59, 0)), False)
sketch7.addGeometry(Part.LineSegment(V(72, 59, 0), V(68, 59, 0)), False)
sketch7.addGeometry(Part.ArcOfCircle(Part.Circle(V(68, 63, 0), V(0, 0, 1), 4), math.radians(180), math.radians(270)), False)
sketch7.addGeometry(Part.LineSegment(V(64, 63, 0), V(64, 67, 0)), False)
sketch7.addGeometry(Part.Circle(V(68, 63, 0), V(0, 0, 1), 1.5), False)
sketch7.addGeometry(Part.LineSegment(V(-72, 59, 0), V(-72, 65, 0)), False)
sketch7.addGeometry(Part.ArcOfCircle(Part.Circle(V(-70, 65, 0), V(0, 0, 1), 2), math.radians(90), math.radians(180)), False)
sketch7.addGeometry(Part.LineSegment(V(-70, 67, 0), V(-64, 67, 0)), False)
sketch7.addGeometry(Part.LineSegment(V(-64, 67, 0), V(-64, 63, 0)), False)
sketch7.addGeometry(Part.ArcOfCircle(Part.Circle(V(-68, 63, 0), V(0, 0, 1), 4), math.radians(-90), math.radians(0)), False)
sketch7.addGeometry(Part.LineSegment(V(-68, 59, 0), V(-72, 59, 0)), False)
sketch7.addGeometry(Part.Circle(V(-68, 63, 0), V(0, 0, 1), 1.5), False)
sketch7.addConstraint(Sketcher.Constraint("Coincident", 0, 2, 1, 1))
sketch7.addConstraint(Sketcher.Constraint("Tangent", 1, 2, 2, 2))
sketch7.addConstraint(Sketcher.Constraint("Tangent", 2, 1, 3, 1))
sketch7.addConstraint(Sketcher.Constraint("Coincident", 3, 2, 4, 1))
sketch7.addConstraint(Sketcher.Constraint("Tangent", 4, 2, 5, 2))
sketch7.addConstraint(Sketcher.Constraint("Tangent", 5, 1, 0, 1))
sketch7.addConstraint(Sketcher.Constraint("Tangent", 7, 2, 8, 2))
sketch7.addConstraint(Sketcher.Constraint("Tangent", 8, 1, 9, 1))
sketch7.addConstraint(Sketcher.Constraint("Coincident", 9, 2, 10, 1))
sketch7.addConstraint(Sketcher.Constraint("Tangent", 10, 2, 11, 2))
sketch7.addConstraint(Sketcher.Constraint("Tangent", 11, 1, 12, 1))
sketch7.addConstraint(Sketcher.Constraint("Coincident", 12, 2, 7, 1))
sketch7.addConstraint(Sketcher.Constraint("Tangent", 14, 2, 15, 2))
sketch7.addConstraint(Sketcher.Constraint("Tangent", 15, 1, 16, 1))
sketch7.addConstraint(Sketcher.Constraint("Coincident", 16, 2, 17, 1))
sketch7.addConstraint(Sketcher.Constraint("Tangent", 17, 2, 18, 2))
sketch7.addConstraint(Sketcher.Constraint("Tangent", 18, 1, 19, 1))
sketch7.addConstraint(Sketcher.Constraint("Coincident", 19, 2, 14, 1))
sketch7.addConstraint(Sketcher.Constraint("Tangent", 21, 2, 22, 2))
sketch7.addConstraint(Sketcher.Constraint("Tangent", 22, 1, 23, 1))
sketch7.addConstraint(Sketcher.Constraint("Coincident", 23, 2, 24, 1))
sketch7.addConstraint(Sketcher.Constraint("Tangent", 24, 2, 25, 2))
sketch7.addConstraint(Sketcher.Constraint("Tangent", 25, 1, 26, 1))
sketch7.addConstraint(Sketcher.Constraint("Coincident", 26, 2, 21, 1))
sketch7.addConstraint(Sketcher.Constraint("Vertical", 0))
sketch7.addConstraint(Sketcher.Constraint("Horizontal", 1))
sketch7.addConstraint(Sketcher.Constraint("Vertical", 3))
sketch7.addConstraint(Sketcher.Constraint("Horizontal", 4))
sketch7.addConstraint(Sketcher.Constraint("Vertical", 7))
sketch7.addConstraint(Sketcher.Constraint("Horizontal", 9))
sketch7.addConstraint(Sketcher.Constraint("Vertical", 10))
sketch7.addConstraint(Sketcher.Constraint("Horizontal", 12))
sketch7.addConstraint(Sketcher.Constraint("Horizontal", 14))
sketch7.addConstraint(Sketcher.Constraint("Vertical", 16))
sketch7.addConstraint(Sketcher.Constraint("Horizontal", 17))
sketch7.addConstraint(Sketcher.Constraint("Vertical", 19))
sketch7.addConstraint(Sketcher.Constraint("Vertical", 21))
sketch7.addConstraint(Sketcher.Constraint("Horizontal", 23))
sketch7.addConstraint(Sketcher.Constraint("Vertical", 24))
sketch7.addConstraint(Sketcher.Constraint("Horizontal", 26))
sketch7.addConstraint(Sketcher.Constraint("Coincident", 6, 3, 5, 3))
sketch7.addConstraint(Sketcher.Constraint("Coincident", 13, 3, 11, 3))
sketch7.addConstraint(Sketcher.Constraint("Coincident", 20, 3, 18, 3))
sketch7.addConstraint(Sketcher.Constraint("Coincident", 27, 3, 25, 3))
sketch7.addConstraint(Sketcher.Constraint("Equal", 2, 8))
sketch7.addConstraint(Sketcher.Constraint("Equal", 5, 11))
sketch7.addConstraint(Sketcher.Constraint("Equal", 6, 13))
sketch7.addConstraint(Sketcher.Constraint("Equal", 8, 15))
sketch7.addConstraint(Sketcher.Constraint("Equal", 11, 18))
sketch7.addConstraint(Sketcher.Constraint("Equal", 13, 20))
sketch7.addConstraint(Sketcher.Constraint("Equal", 15, 22))
sketch7.addConstraint(Sketcher.Constraint("Equal", 18, 25))
sketch7.addConstraint(Sketcher.Constraint("Equal", 20, 27))
sketch7.addConstraint(Sketcher.Constraint("Symmetric", 2, 3, 15, 3, -1, 1))
sketch7.addConstraint(Sketcher.Constraint("Symmetric", 5, 3, 18, 3, -1, 1))
sketch7.addConstraint(Sketcher.Constraint("Symmetric", 8, 3, 22, 3, -1, 1))
sketch7.addConstraint(Sketcher.Constraint("Symmetric", 11, 3, 25, 3, -1, 1))
sketch7.addConstraint(Sketcher.Constraint("Symmetric", 2, 3, 8, 3, -2))
sketch7.addConstraint(Sketcher.Constraint("Symmetric", 5, 3, 11, 3, -2))
sketch7.addConstraint(Sketcher.Constraint("Equal", 26, 0))
sketch7.addConstraint(Sketcher.Constraint("Diameter", 6, Q("3 mm")))
sketch7.addConstraint(Sketcher.Constraint("Radius", 2, Q("2 mm")))
sketch7.addConstraint(Sketcher.Constraint("Radius", 5, Q("4 mm")))
sketch7.addConstraint(Sketcher.Constraint("DistanceX", 1, 2, 1, 1, Q("6 mm")))
sketch7.addConstraint(Sketcher.Constraint("DistanceX", 2, 3, -1, 1, Q("70 mm")))
sketch7.addConstraint(Sketcher.Constraint("DistanceY", 2, 3, -1, 1, Q("65 mm")))
pad2 = body.newObject("PartDesign::Pad", "Pad001")
pad2.Profile = sketch7
pad2.Length = 20
pad2.Reversed = True

# Sketch on XZ plane
sketch8 = body.newObject("Sketcher::SketchObject", "Sketch007")
sketch8.AttachmentSupport = (doc.getObject("XZ_Plane"), [""])
sketch8.MapMode = "FlatFace"
sketch8.AttachmentOffset = App.Placement(V(0, 0, -3), App.Rotation())
sketch8.addGeometry(Part.Circle(V(-60, -55, 0), V(0, 0, 1), 1.5), False)
sketch8.addGeometry(Part.Circle(V(-60, 55, 0), V(0, 0, 1), 1.5), False)
sketch8.addGeometry(Part.Circle(V(60, 55, 0), V(0, 0, 1), 1.5), False)
sketch8.addGeometry(Part.Circle(V(60, -55, 0), V(0, 0, 1), 1.5), False)
sketch8.addConstraint(Sketcher.Constraint("Equal", 0, 1))
sketch8.addConstraint(Sketcher.Constraint("Equal", 1, 2))
sketch8.addConstraint(Sketcher.Constraint("Equal", 2, 3))
sketch8.addConstraint(Sketcher.Constraint("Symmetric", 0, 3, 2, 3, -1, 1))
sketch8.addConstraint(Sketcher.Constraint("Symmetric", 1, 3, 3, 3, -1, 1))
sketch8.addConstraint(Sketcher.Constraint("Symmetric", 1, 3, 2, 3, -2))
sketch8.addConstraint(Sketcher.Constraint("Diameter", 0, Q("3 mm")))
sketch8.addConstraint(Sketcher.Constraint("DistanceX", 0, 3, -1, 1, Q("60 mm")))
sketch8.addConstraint(Sketcher.Constraint("DistanceY", 0, 3, -1, 1, Q("55 mm")))
pocket6 = body.newObject("PartDesign::Pocket", "Pocket005")
pocket6.Profile = sketch8
pocket6.Type = "ThroughAll"
pocket6.Reversed = True

doc.recompute()
